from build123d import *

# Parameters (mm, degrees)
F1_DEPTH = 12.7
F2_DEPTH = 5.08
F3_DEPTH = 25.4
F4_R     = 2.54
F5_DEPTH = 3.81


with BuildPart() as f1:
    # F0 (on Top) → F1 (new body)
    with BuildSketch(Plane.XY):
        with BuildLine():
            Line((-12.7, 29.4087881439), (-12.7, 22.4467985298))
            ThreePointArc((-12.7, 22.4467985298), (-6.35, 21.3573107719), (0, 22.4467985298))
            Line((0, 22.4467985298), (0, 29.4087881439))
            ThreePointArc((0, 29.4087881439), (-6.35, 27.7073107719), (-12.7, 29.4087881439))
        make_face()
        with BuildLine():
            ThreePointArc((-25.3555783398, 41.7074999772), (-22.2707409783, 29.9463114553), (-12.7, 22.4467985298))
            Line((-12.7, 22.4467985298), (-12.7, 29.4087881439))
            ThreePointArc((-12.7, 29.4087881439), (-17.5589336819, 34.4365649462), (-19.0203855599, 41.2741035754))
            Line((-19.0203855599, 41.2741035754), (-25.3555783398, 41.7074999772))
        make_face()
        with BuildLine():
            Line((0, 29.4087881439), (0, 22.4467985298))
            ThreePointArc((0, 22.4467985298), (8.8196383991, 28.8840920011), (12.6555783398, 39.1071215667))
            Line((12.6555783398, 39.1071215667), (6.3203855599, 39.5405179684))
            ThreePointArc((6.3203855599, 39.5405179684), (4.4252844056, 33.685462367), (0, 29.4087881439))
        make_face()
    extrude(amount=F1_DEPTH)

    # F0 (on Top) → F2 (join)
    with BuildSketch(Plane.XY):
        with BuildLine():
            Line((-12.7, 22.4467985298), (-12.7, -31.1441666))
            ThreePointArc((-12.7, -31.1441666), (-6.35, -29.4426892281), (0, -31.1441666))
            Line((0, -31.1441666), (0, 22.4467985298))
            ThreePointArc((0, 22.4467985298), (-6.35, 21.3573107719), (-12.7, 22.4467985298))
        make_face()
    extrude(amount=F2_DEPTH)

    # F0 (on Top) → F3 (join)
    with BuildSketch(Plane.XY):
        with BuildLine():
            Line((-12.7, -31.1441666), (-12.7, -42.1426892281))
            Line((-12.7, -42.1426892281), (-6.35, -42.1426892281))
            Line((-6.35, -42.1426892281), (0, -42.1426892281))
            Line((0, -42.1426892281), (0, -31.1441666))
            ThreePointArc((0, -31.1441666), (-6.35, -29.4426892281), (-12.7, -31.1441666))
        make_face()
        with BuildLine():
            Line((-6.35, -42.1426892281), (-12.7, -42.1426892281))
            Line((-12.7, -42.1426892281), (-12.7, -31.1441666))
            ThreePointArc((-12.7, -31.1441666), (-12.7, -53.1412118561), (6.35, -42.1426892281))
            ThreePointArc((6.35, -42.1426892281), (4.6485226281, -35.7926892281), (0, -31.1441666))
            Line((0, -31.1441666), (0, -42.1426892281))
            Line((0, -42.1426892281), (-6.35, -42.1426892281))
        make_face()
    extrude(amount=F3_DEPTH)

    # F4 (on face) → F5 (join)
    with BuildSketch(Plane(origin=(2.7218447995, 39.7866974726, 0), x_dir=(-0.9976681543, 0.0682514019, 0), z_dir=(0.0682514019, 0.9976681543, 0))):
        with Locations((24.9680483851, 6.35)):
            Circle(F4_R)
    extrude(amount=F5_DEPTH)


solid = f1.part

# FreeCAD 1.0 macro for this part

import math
import FreeCAD as App
import Part
import Sketcher
Q = App.Units.Quantity

doc = App.newDocument("Part")
body = doc.addObject("PartDesign::Body", "Body")

# Sketch on XY plane
sketch1 = body.newObject("Sketcher::SketchObject", "Sketch")
sketch1.AttachmentSupport = (doc.getObject("XY_Plane"), [""])
sketch1.MapMode = "FlatFace"
sketch1.addGeometry([
    Part.ArcOfCircle(Part.Circle(App.Vector(-6.35, 40.407311, 0), App.Vector(0, 0, 1), 19.05), math.radians(-109.471221), math.radians(-70.528779)),  # 0
    Part.ArcOfCircle(Part.Circle(App.Vector(-6.35, 40.407311, 0), App.Vector(0, 0, 1), 19.05), math.radians(-70.528779), math.radians(-3.91356)),  # 1
    Part.LineSegment(App.Vector(12.655578, 39.107122, 0), App.Vector(6.320386, 39.540518, 0)),  # 2
    Part.ArcOfCircle(Part.Circle(App.Vector(-6.35, 40.407311, 0), App.Vector(0, 0, 1), 12.7), math.radians(-60), math.radians(-3.91356)),  # 3
    Part.ArcOfCircle(Part.Circle(App.Vector(-6.35, 40.407311, 0), App.Vector(0, 0, 1), 12.7), math.radians(-120), math.radians(-60)),  # 4
    Part.ArcOfCircle(Part.Circle(App.Vector(-6.35, 40.407311, 0), App.Vector(0, 0, 1), 12.7), math.radians(176.08644), math.radians(240)),  # 5
    Part.LineSegment(App.Vector(-19.020386, 41.274104, 0), App.Vector(-25.355578, 41.7075, 0)),  # 6
    Part.ArcOfCircle(Part.Circle(App.Vector(-6.35, 40.407311, 0), App.Vector(0, 0, 1), 19.05), math.radians(176.08644), math.radians(250.528779)),  # 7
], False)
sketch1.addConstraint([
    Sketcher.Constraint("Tangent", 0, 2, 1, 1),
    Sketcher.Constraint("Coincident", 1, 2, 2, 1),
    Sketcher.Constraint("Coincident", 2, 2, 3, 2),
    Sketcher.Constraint("Tangent", 3, 1, 4, 2),
    Sketcher.Constraint("Tangent", 4, 1, 5, 2),
    Sketcher.Constraint("Coincident", 5, 1, 6, 1),
    Sketcher.Constraint("Coincident", 6, 2, 7, 1),
    Sketcher.Constraint("Tangent", 7, 2, 0, 1),
    Sketcher.Constraint("Coincident", 3, 3, 0, 3),
    Sketcher.Constraint("Coincident", 5, 3, 0, 3),
    Sketcher.Constraint("Equal", 0, 1),
    Sketcher.Constraint("Equal", 1, 7),
    Sketcher.Constraint("PointOnObject", 0, 2, -2),
    Sketcher.Constraint("PointOnObject", 3, 1, -2),
    Sketcher.Constraint("Parallel", 2, 6),
    Sketcher.Constraint("Horizontal", 3, 1, 4, 1),
    Sketcher.Constraint("Horizontal", 0, 2, 7, 2),
    Sketcher.Constraint("Radius", 3, Q("0.5 in")),
    Sketcher.Constraint("Radius", 0, Q("0.75 in")),
    Sketcher.Constraint("DistanceX", 4, 1, -1, 1, Q("0.5 in")),
    Sketcher.Constraint("DistanceY", -1, 1, 0, 2, Q("22.446799 mm")),
    Sketcher.Constraint("DistanceY", -1, 1, 6, 2, Q("41.7075 mm")),
    Sketcher.Constraint("DistanceX", -1, 1, 1, 2, Q("12.655578 mm")),
    Sketcher.Constraint("DistanceY", 3, 1, 2, 2, Q("10.13173 mm")),
])
pad1 = body.newObject("PartDesign::Pad", "Pad")
pad1.Profile = sketch1
pad1.Length = Q("0.5 in")

# Sketch on XY plane
sketch2 = body.newObject("Sketcher::SketchObject", "Sketch001")
sketch2.AttachmentSupport = (doc.getObject("XY_Plane"), [""])
sketch2.MapMode = "FlatFace"
sketch2.addGeometry([
    Part.LineSegment(App.Vector(-12.7, 22.446799, 0), App.Vector(-12.7, -31.144167, 0)),
    Part.ArcOfCircle(Part.Circle(App.Vector(-6.35, -42.142689, 0), App.Vector(0, 0, 1), 12.7), math.radians(60), math.radians(120)),
    Part.LineSegment(App.Vector(0, -31.144167, 0), App.Vector(0, 22.446799, 0)),
    Part.ArcOfCircle(Part.Circle(App.Vector(-6.35, 40.407311, 0), App.Vector(0, 0, 1), 19.05), math.radians(-109.471221), math.radians(-70.528779)),
], False)
sketch2.addConstraint([
    Sketcher.Constraint("Coincident", 0, 2, 1, 2),
    Sketcher.Constraint("Coincident", 1, 1, 2, 1),
    Sketcher.Constraint("Coincident", 2, 2, 3, 2),
    Sketcher.Constraint("Coincident", 3, 1, 0, 1),
    Sketcher.Constraint("Vertical", 0),
    Sketcher.Constraint("Vertical", 2),
    Sketcher.Constraint("PointOnObject", 1, 1, -2),
    Sketcher.Constraint("Horizontal", 0, 2, 1, 1),
    Sketcher.Constraint("Horizontal", 2, 2, 3, 1),
    Sketcher.Constraint("Radius", 1, Q("0.5 in")),
    Sketcher.Constraint("Radius", 3, Q("0.75 in")),
    Sketcher.Constraint("DistanceX", 0, 2, -1, 1, Q("0.5 in")),
    Sketcher.Constraint("DistanceY", 1, 3, 3, 3, Q("3.25 in")),
    Sketcher.Constraint("DistanceY", -1, 1, 2, 2, Q("22.446799 mm")),
])
pad2 = body.newObject("PartDesign::Pad", "Pad001")
pad2.Profile = sketch2
pad2.Length = Q("0.2 in")

# Sketch on XY plane
sketch3 = body.newObject("Sketcher::SketchObject", "Sketch002")
sketch3.AttachmentSupport = (doc.getObject("XY_Plane"), [""])
sketch3.MapMode = "FlatFace"
sketch3.addGeometry([
    Part.ArcOfCircle(Part.Circle(App.Vector(-6.35, -42.142689, 0), App.Vector(0, 0, 1), 12.7), math.radians(60), math.radians(120)),
    Part.ArcOfCircle(Part.Circle(App.Vector(-6.35, -42.142689, 0), App.Vector(0, 0, 1), 12.7), math.radians(120), math.radians(360)),
    Part.ArcOfCircle(Part.Circle(App.Vector(-6.35, -42.142689, 0), App.Vector(0, 0, 1), 12.7), math.radians(0), math.radians(60)),
], False)
sketch3.addConstraint([
    Sketcher.Constraint("Tangent", 0, 2, 1, 1),
    Sketcher.Constraint("Tangent", 1, 2, 2, 1),
    Sketcher.Constraint("Tangent", 2, 2, 0, 1),
    Sketcher.Constraint("PointOnObject", 2, 2, -2),
    Sketcher.Constraint("Horizontal", 2, 3, 1, 2),
    Sketcher.Constraint("Horizontal", 0, 2, 2, 2),
    Sketcher.Constraint("Radius", 0, Q("0.5 in")),
    Sketcher.Constraint("DistanceX", 0, 2, -1, 1, Q("0.5 in")),
    Sketcher.Constraint("DistanceY", 0, 3, -1, 1, Q("42.142689 mm")),
])
pad3 = body.newObject("PartDesign::Pad", "Pad002")
pad3.Profile = sketch3
pad3.Length = Q("1 in")

# Sketch on an angled plane
sketch4 = body.newObject("Sketcher::SketchObject", "Sketch003")
sketch4.Placement = App.Placement(App.Vector(2.721845, 39.786697, 0), App.Rotation(App.Vector(-0.997668154, 0.068251402, 0), App.Vector(0, 0, 0.999999999), App.Vector(0.068251402, 0.997668154, 0), "ZXY"))
sketch4.addGeometry(Part.Circle(App.Vector(24.968048, 6.35, 0), App.Vector(0, 0, 1), 2.54), False)
sketch4.addConstraint([
    Sketcher.Constraint("Diameter", 0, Q("0.2 in")),
    Sketcher.Constraint("DistanceY", -1, 1, 0, 3, Q("0.25 in")),
    Sketcher.Constraint("DistanceX", -1, 1, 0, 3, Q("24.968048 mm")),
])
pad4 = body.newObject("PartDesign::Pad", "Pad003")
pad4.Profile = sketch4
pad4.Length = Q("0.15 in")

doc.recompute()
